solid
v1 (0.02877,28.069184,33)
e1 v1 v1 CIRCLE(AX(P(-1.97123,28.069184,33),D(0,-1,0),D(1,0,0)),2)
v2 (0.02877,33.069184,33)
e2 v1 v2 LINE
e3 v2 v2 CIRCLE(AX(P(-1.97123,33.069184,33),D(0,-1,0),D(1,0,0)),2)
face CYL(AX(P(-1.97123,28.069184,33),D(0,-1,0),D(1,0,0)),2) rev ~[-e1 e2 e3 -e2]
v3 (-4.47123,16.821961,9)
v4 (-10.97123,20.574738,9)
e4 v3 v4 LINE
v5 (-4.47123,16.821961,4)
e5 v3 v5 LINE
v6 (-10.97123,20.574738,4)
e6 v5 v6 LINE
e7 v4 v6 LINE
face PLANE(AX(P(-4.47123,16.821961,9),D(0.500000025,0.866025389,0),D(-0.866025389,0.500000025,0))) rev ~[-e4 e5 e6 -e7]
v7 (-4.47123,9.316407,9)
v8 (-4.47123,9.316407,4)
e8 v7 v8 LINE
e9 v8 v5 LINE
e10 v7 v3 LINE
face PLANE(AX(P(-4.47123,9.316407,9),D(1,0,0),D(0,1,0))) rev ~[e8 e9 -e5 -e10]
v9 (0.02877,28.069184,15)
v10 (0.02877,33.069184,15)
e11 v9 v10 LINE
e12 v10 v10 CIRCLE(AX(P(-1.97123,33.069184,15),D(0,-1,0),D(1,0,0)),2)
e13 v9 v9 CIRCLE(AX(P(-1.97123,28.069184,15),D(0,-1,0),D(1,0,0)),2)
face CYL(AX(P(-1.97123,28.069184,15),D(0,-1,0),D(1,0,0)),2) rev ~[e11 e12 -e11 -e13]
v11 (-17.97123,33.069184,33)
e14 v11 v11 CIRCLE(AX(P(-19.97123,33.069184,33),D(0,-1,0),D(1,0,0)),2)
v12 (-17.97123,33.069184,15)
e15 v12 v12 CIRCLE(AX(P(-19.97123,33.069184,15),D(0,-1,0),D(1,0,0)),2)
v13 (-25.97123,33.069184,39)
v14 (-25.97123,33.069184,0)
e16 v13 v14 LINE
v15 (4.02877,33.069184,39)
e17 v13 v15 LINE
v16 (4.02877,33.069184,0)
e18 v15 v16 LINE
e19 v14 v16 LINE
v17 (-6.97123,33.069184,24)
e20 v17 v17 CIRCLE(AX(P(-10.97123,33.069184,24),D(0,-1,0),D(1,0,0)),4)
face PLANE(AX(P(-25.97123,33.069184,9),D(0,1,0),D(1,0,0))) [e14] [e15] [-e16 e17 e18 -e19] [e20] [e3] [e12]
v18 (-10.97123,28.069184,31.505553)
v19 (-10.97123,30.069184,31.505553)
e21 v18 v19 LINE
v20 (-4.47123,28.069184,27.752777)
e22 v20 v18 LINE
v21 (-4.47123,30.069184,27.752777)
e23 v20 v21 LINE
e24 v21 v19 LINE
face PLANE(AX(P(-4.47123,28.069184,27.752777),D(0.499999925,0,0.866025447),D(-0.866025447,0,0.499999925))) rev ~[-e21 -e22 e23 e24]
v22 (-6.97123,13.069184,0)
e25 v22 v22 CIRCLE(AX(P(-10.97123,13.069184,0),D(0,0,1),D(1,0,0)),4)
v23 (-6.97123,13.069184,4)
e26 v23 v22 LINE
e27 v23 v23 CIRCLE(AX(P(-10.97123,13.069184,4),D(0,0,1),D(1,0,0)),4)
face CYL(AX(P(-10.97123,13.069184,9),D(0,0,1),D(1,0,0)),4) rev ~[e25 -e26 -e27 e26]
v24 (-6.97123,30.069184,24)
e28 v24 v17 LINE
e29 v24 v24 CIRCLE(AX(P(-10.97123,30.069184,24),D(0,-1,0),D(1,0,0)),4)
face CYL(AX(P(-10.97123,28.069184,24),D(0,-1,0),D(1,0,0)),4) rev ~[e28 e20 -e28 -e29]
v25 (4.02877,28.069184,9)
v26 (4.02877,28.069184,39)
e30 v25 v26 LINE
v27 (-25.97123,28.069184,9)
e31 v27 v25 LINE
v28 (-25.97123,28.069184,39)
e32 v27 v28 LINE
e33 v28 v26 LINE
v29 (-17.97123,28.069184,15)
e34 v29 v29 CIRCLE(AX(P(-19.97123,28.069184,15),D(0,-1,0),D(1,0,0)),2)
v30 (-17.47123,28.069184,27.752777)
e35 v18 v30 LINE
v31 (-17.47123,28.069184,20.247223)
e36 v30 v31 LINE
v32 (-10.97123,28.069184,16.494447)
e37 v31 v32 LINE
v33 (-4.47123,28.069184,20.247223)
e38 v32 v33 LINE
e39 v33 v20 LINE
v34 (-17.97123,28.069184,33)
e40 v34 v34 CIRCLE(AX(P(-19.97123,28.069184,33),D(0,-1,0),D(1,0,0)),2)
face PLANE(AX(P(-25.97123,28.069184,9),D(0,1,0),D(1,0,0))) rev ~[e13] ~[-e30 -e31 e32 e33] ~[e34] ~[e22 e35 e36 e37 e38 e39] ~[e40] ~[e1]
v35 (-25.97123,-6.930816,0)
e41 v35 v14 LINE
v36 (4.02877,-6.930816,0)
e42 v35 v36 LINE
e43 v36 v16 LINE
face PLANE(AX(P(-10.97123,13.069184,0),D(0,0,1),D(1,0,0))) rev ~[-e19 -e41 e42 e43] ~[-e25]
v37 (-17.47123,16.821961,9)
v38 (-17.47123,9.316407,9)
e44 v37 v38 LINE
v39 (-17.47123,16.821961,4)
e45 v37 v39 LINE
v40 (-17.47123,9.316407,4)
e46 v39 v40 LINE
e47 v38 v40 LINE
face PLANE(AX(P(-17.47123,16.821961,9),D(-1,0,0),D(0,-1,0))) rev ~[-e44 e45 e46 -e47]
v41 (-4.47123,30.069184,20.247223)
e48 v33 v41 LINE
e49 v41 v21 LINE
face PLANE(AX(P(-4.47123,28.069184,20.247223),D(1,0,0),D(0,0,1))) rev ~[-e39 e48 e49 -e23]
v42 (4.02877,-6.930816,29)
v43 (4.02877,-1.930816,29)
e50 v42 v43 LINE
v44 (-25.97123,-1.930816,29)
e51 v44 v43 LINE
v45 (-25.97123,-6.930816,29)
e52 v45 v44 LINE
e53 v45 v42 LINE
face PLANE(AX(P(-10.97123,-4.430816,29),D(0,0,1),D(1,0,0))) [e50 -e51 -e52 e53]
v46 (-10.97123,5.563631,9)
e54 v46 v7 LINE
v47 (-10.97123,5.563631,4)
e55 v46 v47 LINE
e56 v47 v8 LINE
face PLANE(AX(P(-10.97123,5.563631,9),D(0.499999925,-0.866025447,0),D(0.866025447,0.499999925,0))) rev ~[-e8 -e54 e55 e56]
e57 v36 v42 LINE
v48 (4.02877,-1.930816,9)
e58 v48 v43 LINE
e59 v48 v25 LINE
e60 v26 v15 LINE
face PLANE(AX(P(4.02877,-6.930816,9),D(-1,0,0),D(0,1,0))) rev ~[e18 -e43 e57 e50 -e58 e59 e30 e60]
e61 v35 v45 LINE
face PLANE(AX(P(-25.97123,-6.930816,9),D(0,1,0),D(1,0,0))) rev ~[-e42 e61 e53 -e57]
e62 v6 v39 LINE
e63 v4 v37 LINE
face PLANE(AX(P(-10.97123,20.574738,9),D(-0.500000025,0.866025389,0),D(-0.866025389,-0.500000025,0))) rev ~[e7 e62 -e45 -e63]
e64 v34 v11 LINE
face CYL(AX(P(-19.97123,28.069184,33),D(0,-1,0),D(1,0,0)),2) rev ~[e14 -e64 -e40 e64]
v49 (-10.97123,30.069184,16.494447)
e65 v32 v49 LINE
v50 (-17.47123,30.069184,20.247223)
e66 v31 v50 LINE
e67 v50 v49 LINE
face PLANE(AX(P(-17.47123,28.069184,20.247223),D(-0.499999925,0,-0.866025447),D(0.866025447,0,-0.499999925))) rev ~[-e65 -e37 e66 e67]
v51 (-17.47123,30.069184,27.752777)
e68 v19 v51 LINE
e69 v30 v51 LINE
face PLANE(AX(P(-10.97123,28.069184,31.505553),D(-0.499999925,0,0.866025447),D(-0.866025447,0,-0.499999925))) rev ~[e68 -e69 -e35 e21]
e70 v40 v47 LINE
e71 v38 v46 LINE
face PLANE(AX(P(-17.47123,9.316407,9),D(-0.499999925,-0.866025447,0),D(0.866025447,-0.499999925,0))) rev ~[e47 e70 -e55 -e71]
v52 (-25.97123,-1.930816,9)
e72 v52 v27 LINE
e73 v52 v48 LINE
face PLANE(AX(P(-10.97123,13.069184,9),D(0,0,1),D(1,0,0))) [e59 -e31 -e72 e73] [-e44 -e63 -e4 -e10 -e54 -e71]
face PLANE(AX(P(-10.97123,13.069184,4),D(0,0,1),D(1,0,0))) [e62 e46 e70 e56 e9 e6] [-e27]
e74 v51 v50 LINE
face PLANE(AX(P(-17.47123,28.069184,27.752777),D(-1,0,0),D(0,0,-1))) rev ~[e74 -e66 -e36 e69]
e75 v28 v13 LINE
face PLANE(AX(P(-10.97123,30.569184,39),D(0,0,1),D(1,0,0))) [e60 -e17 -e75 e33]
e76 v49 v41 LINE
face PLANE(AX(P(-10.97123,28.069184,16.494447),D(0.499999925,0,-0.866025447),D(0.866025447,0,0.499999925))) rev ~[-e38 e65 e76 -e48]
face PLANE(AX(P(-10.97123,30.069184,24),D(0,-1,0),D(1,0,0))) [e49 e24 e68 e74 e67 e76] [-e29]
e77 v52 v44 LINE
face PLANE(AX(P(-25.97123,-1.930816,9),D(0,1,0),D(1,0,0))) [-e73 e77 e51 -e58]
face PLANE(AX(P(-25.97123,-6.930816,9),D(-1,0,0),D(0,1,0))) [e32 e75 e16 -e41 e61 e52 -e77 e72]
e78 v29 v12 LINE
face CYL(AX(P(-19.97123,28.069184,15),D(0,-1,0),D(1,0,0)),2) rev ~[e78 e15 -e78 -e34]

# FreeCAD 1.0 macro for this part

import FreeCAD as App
import Part
import Sketcher
Q = App.Units.Quantity

doc = App.newDocument("Part")
body = doc.addObject("PartDesign::Body", "Body")

# Sketch on XY plane
sketch1 = body.newObject("Sketcher::SketchObject", "Sketch")
sketch1.AttachmentSupport = (doc.getObject("XY_Plane"), [""])
sketch1.MapMode = "FlatFace"
sketch1.addGeometry([
    Part.LineSegment(App.Vector(-26, 33, 0), App.Vector(-26, -7, 0)),
    Part.LineSegment(App.Vector(-26, -7, 0), App.Vector(4, -7, 0)),
    Part.LineSegment(App.Vector(4, -7, 0), App.Vector(4, 33, 0)),
    Part.LineSegment(App.Vector(4, 33, 0), App.Vector(-26, 33, 0)),
], False)
sketch1.addConstraint([
    Sketcher.Constraint("Coincident", 0, 2, 1, 1),
    Sketcher.Constraint("Coincident", 1, 2, 2, 1),
    Sketcher.Constraint("Coincident", 2, 2, 3, 1),
    Sketcher.Constraint("Coincident", 3, 2, 0, 1),
    Sketcher.Constraint("Vertical", 0),
    Sketcher.Constraint("Horizontal", 1),
    Sketcher.Constraint("Vertical", 2),
    Sketcher.Constraint("Horizontal", 3),
    Sketcher.Constraint("DistanceX", 1, 1, 1, 2, 30.0),
    Sketcher.Constraint("DistanceY", 0, 2, 0, 1, 40.0),
    Sketcher.Constraint("DistanceX", 0, 2, -1, 1, 25.97123),
    Sketcher.Constraint("DistanceY", 0, 2, -1, 1, 6.930816),
])
pad1 = body.newObject("PartDesign::Pad", "Pad")
pad1.Profile = sketch1
pad1.Length = 9

# Sketch on XY plane
sketch2 = body.newObject("Sketcher::SketchObject", "Sketch001")
sketch2.AttachmentSupport = (doc.getObject("XY_Plane"), [""])
sketch2.MapMode = "FlatFace"
sketch2.AttachmentOffset = App.Placement(App.Vector(0, 0, 9), App.Rotation())
sketch2.addGeometry([
    Part.LineSegment(App.Vector(-26, 33, 0), App.Vector(-26, 28, 0)),
    Part.LineSegment(App.Vector(-26, 28, 0), App.Vector(4, 28, 0)),
    Part.LineSegment(App.Vector(4, 28, 0), App.Vector(4, 33, 0)),
    Part.LineSegment(App.Vector(4, 33, 0), App.Vector(-26, 33, 0)),
], False)
sketch2.addConstraint([
    Sketcher.Constraint("Coincident", 0, 2, 1, 1),
    Sketcher.Constraint("Coincident", 1, 2, 2, 1),
    Sketcher.Constraint("Coincident", 2, 2, 3, 1),
    Sketcher.Constraint("Coincident", 3, 2, 0, 1),
    Sketcher.Constraint("Vertical", 0),
    Sketcher.Constraint("Horizontal", 1),
    Sketcher.Constraint("Vertical", 2),
    Sketcher.Constraint("Horizontal", 3),
    Sketcher.Constraint("DistanceX", 1, 1, 1, 2, 30.0),
    Sketcher.Constraint("DistanceY", 0, 2, 0, 1, 5.0),
    Sketcher.Constraint("DistanceX", 0, 2, -1, 1, 25.97123),
    Sketcher.Constraint("DistanceY", -1, 1, 0, 2, 28.069184),
])
pad2 = body.newObject("PartDesign::Pad", "Pad001")
pad2.Profile = sketch2
pad2.Length = 30

# Sketch on XZ plane
sketch3 = body.newObject("Sketcher::SketchObject", "Sketch002")
sketch3.AttachmentSupport = (doc.getObject("XZ_Plane"), [""])
sketch3.MapMode = "FlatFace"
sketch3.AttachmentOffset = App.Placement(App.Vector(0, 0, -28.069184), App.Rotation())
sketch3.addGeometry([
    Part.Circle(App.Vector(-2, 33, 0), App.Vector(0, 0, 1), 2),  # 0
    Part.Circle(App.Vector(-20, 33, 0), App.Vector(0, 0, 1), 2),  # 1
    Part.Circle(App.Vector(-20, 15, 0), App.Vector(0, 0, 1), 2),  # 2
    Part.Circle(App.Vector(-2, 15, 0), App.Vector(0, 0, 1), 2),  # 3
    Part.Circle(App.Vector(-11, 24, 0), App.Vector(0, 0, 1), 4),  # 4
], False)
sketch3.addConstraint([
    Sketcher.Constraint("Equal", 0, 1),
    Sketcher.Constraint("Equal", 1, 2),
    Sketcher.Constraint("Equal", 2, 3),
    Sketcher.Constraint("Horizontal", 0, 3, 1, 3),
    Sketcher.Constraint("Horizontal", 2, 3, 3, 3),
    Sketcher.Constraint("Vertical", 1, 3, 2, 3),
    Sketcher.Constraint("Vertical", 0, 3, 3, 3),
    Sketcher.Constraint("Diameter", 0, 4.0),
    Sketcher.Constraint("Diameter", 4, 8.0),
    Sketcher.Constraint("DistanceY", -1, 1, 0, 3, 33.0),
    Sketcher.Constraint("DistanceY", -1, 1, 2, 3, 15.0),
    Sketcher.Constraint("DistanceY", -1, 1, 4, 3, 24.0),
    Sketcher.Constraint("DistanceX", 1, 3, 0, 3, 18.0),
    Sketcher.Constraint("DistanceX", 1, 3, 4, 3, 9.0),
    Sketcher.Constraint("DistanceX", 0, 3, -1, 1, 1.97123),
])
pocket1 = body.newObject("PartDesign::Pocket", "Pocket")
pocket1.Profile = sketch3
pocket1.Type = "ThroughAll"

# Sketch on XZ plane
sketch4 = body.newObject("Sketcher::SketchObject", "Sketch003")
sketch4.AttachmentSupport = (doc.getObject("XZ_Plane"), [""])
sketch4.MapMode = "FlatFace"
sketch4.AttachmentOffset = App.Placement(App.Vector(0, 0, -28.069184), App.Rotation())
sketch4.addGeometry([
    Part.LineSegment(App.Vector(-4, 28, 0), App.Vector(-11, 32, 0)),  # 0
    Part.LineSegment(App.Vector(-11, 32, 0), App.Vector(-17, 28, 0)),  # 1
    Part.LineSegment(App.Vector(-17, 28, 0), App.Vector(-17, 20, 0)),  # 2
    Part.LineSegment(App.Vector(-17, 20, 0), App.Vector(-11, 16, 0)),  # 3
    Part.LineSegment(App.Vector(-11, 16, 0), App.Vector(-4, 20, 0)),  # 4
    Part.LineSegment(App.Vector(-4, 20, 0), App.Vector(-4, 28, 0)),  # 5
], False)
sketch4.addConstraint([
    Sketcher.Constraint("Coincident", 0, 2, 1, 1),
    Sketcher.Constraint("Coincident", 1, 2, 2, 1),
    Sketcher.Constraint("Coincident", 2, 2, 3, 1),
    Sketcher.Constraint("Coincident", 3, 2, 4, 1),
    Sketcher.Constraint("Coincident", 4, 2, 5, 1),
    Sketcher.Constraint("Coincident", 5, 2, 0, 1),
    Sketcher.Constraint("Vertical", 2),
    Sketcher.Constraint("Vertical", 5),
    Sketcher.Constraint("Parallel", 0, 3),
    Sketcher.Constraint("Parallel", 1, 4),
    Sketcher.Constraint("Horizontal", 2, 2, 4, 2),
    Sketcher.Constraint("Horizontal", 1, 2, 5, 2),
    Sketcher.Constraint("Vertical", 0, 2, 3, 2),
    Sketcher.Constraint("Angle", 0, Q("150.000005 deg")),
    Sketcher.Constraint("DistanceX", 2, 2, 4, 2, 13.0),
    Sketcher.Constraint("DistanceY", 2, 2, 2, 1, 7.505554),
    Sketcher.Constraint("DistanceX", 0, 2, -1, 1, 10.97123),
    Sketcher.Constraint("DistanceY", -1, 1, 0, 2, 31.505553),
])
pocket2 = body.newObject("PartDesign::Pocket", "Pocket001")
pocket2.Profile = sketch4
pocket2.Length = 2

# Sketch on XY plane
sketch5 = body.newObject("Sketcher::SketchObject", "Sketch004")
sketch5.AttachmentSupport = (doc.getObject("XY_Plane"), [""])
sketch5.MapMode = "FlatFace"
sketch5.AttachmentOffset = App.Placement(App.Vector(0, 0, 9), App.Rotation())
sketch5.addGeometry([
    Part.LineSegment(App.Vector(-26, -2, 0), App.Vector(-26, -7, 0)),
    Part.LineSegment(App.Vector(-26, -7, 0), App.Vector(4, -7, 0)),
    Part.LineSegment(App.Vector(4, -7, 0), App.Vector(4, -2, 0)),
    Part.LineSegment(App.Vector(4, -2, 0), App.Vector(-26, -2, 0)),
], False)
sketch5.addConstraint([
    Sketcher.Constraint("Coincident", 0, 2, 1, 1),
    Sketcher.Constraint("Coincident", 1, 2, 2, 1),
    Sketcher.Constraint("Coincident", 2, 2, 3, 1),
    Sketcher.Constraint("Coincident", 3, 2, 0, 1),
    Sketcher.Constraint("Vertical", 0),
    Sketcher.Constraint("Horizontal", 1),
    Sketcher.Constraint("Vertical", 2),
    Sketcher.Constraint("Horizontal", 3),
    Sketcher.Constraint("DistanceX", 1, 1, 1, 2, 30.0),
    Sketcher.Constraint("DistanceY", 0, 2, 0, 1, 5.0),
    Sketcher.Constraint("DistanceX", 0, 2, -1, 1, 25.97123),
    Sketcher.Constraint("DistanceY", 0, 2, -1, 1, 6.930816),
])
pad3 = body.newObject("PartDesign::Pad", "Pad002")
pad3.Profile = sketch5
pad3.Length = 20

# Sketch on XY plane
sketch6 = body.newObject("Sketcher::SketchObject", "Sketch005")
sketch6.AttachmentSupport = (doc.getObject("XY_Plane"), [""])
sketch6.MapMode = "FlatFace"
sketch6.AttachmentOffset = App.Placement(App.Vector(0, 0, 9), App.Rotation())
sketch6.addGeometry(Part.Circle(App.Vector(-11, 13.1, 0), App.Vector(0, 0, 1), 4), False)
sketch6.addConstraint([
    Sketcher.Constraint("Diameter", 0, 8.0),
    Sketcher.Constraint("DistanceX", 0, 3, -1, 1, 10.97123),
    Sketcher.Constraint("DistanceY", -1, 1, 0, 3, 13.069184),
])
pocket3 = body.newObject("PartDesign::Pocket", "Pocket002")
pocket3.Profile = sketch6
pocket3.Type = "ThroughAll"

# Sketch on XY plane
sketch7 = body.newObject("Sketcher::SketchObject", "Sketch006")
sketch7.AttachmentSupport = (doc.getObject("XY_Plane"), [""])
sketch7.MapMode = "FlatFace"
sketch7.AttachmentOffset = App.Placement(App.Vector(0, 0, 9), App.Rotation())
sketch7.addGeometry([
    Part.LineSegment(App.Vector(-4, 17, 0), App.Vector(-11, 21, 0)),  # 0
    Part.LineSegment(App.Vector(-11, 21, 0), App.Vector(-17, 17, 0)),  # 1
    Part.LineSegment(App.Vector(-17, 17, 0), App.Vector(-17, 9, 0)),  # 2
    Part.LineSegment(App.Vector(-17, 9, 0), App.Vector(-11, 6, 0)),  # 3
    Part.LineSegment(App.Vector(-11, 6, 0), App.Vector(-4, 9, 0)),  # 4
    Part.LineSegment(App.Vector(-4, 9, 0), App.Vector(-4, 17, 0)),  # 5
], False)
sketch7.addConstraint([
    Sketcher.Constraint("Coincident", 0, 2, 1, 1),
    Sketcher.Constraint("Coincident", 1, 2, 2, 1),
    Sketcher.Constraint("Coincident", 2, 2, 3, 1),
    Sketcher.Constraint("Coincident", 3, 2, 4, 1),
    Sketcher.Constraint("Coincident", 4, 2, 5, 1),
    Sketcher.Constraint("Coincident", 5, 2, 0, 1),
    Sketcher.Constraint("Vertical", 2),
    Sketcher.Constraint("Vertical", 5),
    Sketcher.Constraint("Parallel", 0, 3),
    Sketcher.Constraint("Parallel", 1, 4),
    Sketcher.Constraint("Horizontal", 2, 2, 4, 2),
    Sketcher.Constraint("Horizontal", 1, 2, 5, 2),
    Sketcher.Constraint("Vertical", 0, 2, 3, 2),
    Sketcher.Constraint("Angle", 0, Q("149.999998 deg")),
    Sketcher.Constraint("DistanceX", 2, 2, 4, 2, 13.0),
    Sketcher.Constraint("DistanceY", 2, 2, 2, 1, 7.505554),
    Sketcher.Constraint("DistanceX", 0, 2, -1, 1, 10.97123),
    Sketcher.Constraint("DistanceY", -1, 1, 0, 2, 20.574738),
])
pocket4 = body.newObject("PartDesign::Pocket", "Pocket003")
pocket4.Profile = sketch7
pocket4.Length = 5

doc.recompute()
